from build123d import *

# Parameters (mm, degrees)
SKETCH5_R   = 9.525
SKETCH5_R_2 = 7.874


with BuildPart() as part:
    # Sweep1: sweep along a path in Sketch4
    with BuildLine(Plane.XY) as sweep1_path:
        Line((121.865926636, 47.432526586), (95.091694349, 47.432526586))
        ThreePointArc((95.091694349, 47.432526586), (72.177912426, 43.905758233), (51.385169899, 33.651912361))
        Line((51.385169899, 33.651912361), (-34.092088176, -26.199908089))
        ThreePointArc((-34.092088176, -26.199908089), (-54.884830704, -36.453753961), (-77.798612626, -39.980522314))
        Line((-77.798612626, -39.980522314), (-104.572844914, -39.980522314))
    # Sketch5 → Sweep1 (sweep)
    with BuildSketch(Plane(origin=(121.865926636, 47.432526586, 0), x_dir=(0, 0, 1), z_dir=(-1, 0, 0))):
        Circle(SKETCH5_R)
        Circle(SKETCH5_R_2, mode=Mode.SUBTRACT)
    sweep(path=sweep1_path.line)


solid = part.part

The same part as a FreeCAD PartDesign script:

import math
import FreeCAD as App
import Part
import Sketcher
Q = App.Units.Quantity

doc = App.newDocument("Part")
body = doc.addObject("PartDesign::Body", "Body")

# Sketch on YZ plane
sketch1 = body.newObject("Sketcher::SketchObject", "Sketch")
sketch1.AttachmentSupport = (doc.getObject("YZ_Plane"), [""])
sketch1.MapMode = "FlatFace"
sketch1.AttachmentOffset = App.Placement(App.Vector(0, 0, 121.865927), App.Rotation())
sketch1.addGeometry(Part.Circle(App.Vector(47.432527, 0, 0), App.Vector(0, 0, 1), 9.525), False)
sketch1.addGeometry(Part.Circle(App.Vector(47.432527, 0, 0), App.Vector(0, 0, 1), 7.874), False)
sketch1.addConstraint(Sketcher.Constraint("Coincident", 1, 3, 0, 3))
sketch1.addConstraint(Sketcher.Constraint("PointOnObject", 0, 3, -1))
sketch1.addConstraint(Sketcher.Constraint("Diameter", 0, Q("0.75 in")))
sketch1.addConstraint(Sketcher.Constraint("Diameter", 1, Q("0.62 in")))
sketch1.addConstraint(Sketcher.Constraint("DistanceX", -1, 1, 0, 3, Q("47.432527 mm")))

# Sketch on XY plane
sketch2 = body.newObject("Sketcher::SketchObject", "Sketch001")
sketch2.AttachmentSupport = (doc.getObject("XY_Plane"), [""])
sketch2.MapMode = "FlatFace"
sketch2.addGeometry(Part.LineSegment(App.Vector(121.865927, 47.432527, 0), App.Vector(95.091694, 47.432527, 0)), False)
sketch2.addGeometry(Part.ArcOfCircle(Part.Circle(App.Vector(95.091694, -28.767473, 0), App.Vector(0, 0, 1), 76.2), math.radians(90), math.radians(125)), False)
sketch2.addGeometry(Part.LineSegment(App.Vector(51.38517, 33.651912, 0), App.Vector(-34.092088, -26.199908, 0)), False)
sketch2.addGeometry(Part.ArcOfCircle(Part.Circle(App.Vector(-77.798613, 36.219478, 0), App.Vector(0, 0, 1), 76.2), math.radians(-90), math.radians(-55)), False)
sketch2.addGeometry(Part.LineSegment(App.Vector(-77.798613, -39.980522, 0), App.Vector(-104.572845, -39.980522, 0)), False)
sketch2.addConstraint(Sketcher.Constraint("Tangent", 0, 2, 1, 1))
sketch2.addConstraint(Sketcher.Constraint("Tangent", 1, 2, 2, 1))
sketch2.addConstraint(Sketcher.Constraint("Tangent", 2, 2, 3, 2))
sketch2.addConstraint(Sketcher.Constraint("Tangent", 3, 1, 4, 1))
sketch2.addConstraint(Sketcher.Constraint("Horizontal", 0))
sketch2.addConstraint(Sketcher.Constraint("Horizontal", 4))
sketch2.addConstraint(Sketcher.Constraint("Equal", 1, 3))
sketch2.addConstraint(Sketcher.Constraint("Equal", 0, 4))
sketch2.addConstraint(Sketcher.Constraint("Radius", 1, Q("3 in")))
sketch2.addConstraint(Sketcher.Constraint("Angle", 2, Q("-145 deg")))
sketch2.addConstraint(Sketcher.Constraint("DistanceX", 0, 2, 0, 1, Q("26.774232 mm")))
sketch2.addConstraint(Sketcher.Constraint("DistanceX", -1, 1, 1, 2, Q("51.38517 mm")))
sketch2.addConstraint(Sketcher.Constraint("DistanceX", 2, 2, -1, 1, Q("34.092088 mm")))
sketch2.addConstraint(Sketcher.Constraint("DistanceY", 2, 2, -1, 1, Q("26.199908 mm")))
doc.recompute()

additivepipe = body.newObject("PartDesign::AdditivePipe", "AdditivePipe")
additivepipe.Profile = sketch1
additivepipe.Spine = (sketch2, ["Edge1", "Edge2", "Edge3", "Edge4", "Edge5"])

doc.recompute()
